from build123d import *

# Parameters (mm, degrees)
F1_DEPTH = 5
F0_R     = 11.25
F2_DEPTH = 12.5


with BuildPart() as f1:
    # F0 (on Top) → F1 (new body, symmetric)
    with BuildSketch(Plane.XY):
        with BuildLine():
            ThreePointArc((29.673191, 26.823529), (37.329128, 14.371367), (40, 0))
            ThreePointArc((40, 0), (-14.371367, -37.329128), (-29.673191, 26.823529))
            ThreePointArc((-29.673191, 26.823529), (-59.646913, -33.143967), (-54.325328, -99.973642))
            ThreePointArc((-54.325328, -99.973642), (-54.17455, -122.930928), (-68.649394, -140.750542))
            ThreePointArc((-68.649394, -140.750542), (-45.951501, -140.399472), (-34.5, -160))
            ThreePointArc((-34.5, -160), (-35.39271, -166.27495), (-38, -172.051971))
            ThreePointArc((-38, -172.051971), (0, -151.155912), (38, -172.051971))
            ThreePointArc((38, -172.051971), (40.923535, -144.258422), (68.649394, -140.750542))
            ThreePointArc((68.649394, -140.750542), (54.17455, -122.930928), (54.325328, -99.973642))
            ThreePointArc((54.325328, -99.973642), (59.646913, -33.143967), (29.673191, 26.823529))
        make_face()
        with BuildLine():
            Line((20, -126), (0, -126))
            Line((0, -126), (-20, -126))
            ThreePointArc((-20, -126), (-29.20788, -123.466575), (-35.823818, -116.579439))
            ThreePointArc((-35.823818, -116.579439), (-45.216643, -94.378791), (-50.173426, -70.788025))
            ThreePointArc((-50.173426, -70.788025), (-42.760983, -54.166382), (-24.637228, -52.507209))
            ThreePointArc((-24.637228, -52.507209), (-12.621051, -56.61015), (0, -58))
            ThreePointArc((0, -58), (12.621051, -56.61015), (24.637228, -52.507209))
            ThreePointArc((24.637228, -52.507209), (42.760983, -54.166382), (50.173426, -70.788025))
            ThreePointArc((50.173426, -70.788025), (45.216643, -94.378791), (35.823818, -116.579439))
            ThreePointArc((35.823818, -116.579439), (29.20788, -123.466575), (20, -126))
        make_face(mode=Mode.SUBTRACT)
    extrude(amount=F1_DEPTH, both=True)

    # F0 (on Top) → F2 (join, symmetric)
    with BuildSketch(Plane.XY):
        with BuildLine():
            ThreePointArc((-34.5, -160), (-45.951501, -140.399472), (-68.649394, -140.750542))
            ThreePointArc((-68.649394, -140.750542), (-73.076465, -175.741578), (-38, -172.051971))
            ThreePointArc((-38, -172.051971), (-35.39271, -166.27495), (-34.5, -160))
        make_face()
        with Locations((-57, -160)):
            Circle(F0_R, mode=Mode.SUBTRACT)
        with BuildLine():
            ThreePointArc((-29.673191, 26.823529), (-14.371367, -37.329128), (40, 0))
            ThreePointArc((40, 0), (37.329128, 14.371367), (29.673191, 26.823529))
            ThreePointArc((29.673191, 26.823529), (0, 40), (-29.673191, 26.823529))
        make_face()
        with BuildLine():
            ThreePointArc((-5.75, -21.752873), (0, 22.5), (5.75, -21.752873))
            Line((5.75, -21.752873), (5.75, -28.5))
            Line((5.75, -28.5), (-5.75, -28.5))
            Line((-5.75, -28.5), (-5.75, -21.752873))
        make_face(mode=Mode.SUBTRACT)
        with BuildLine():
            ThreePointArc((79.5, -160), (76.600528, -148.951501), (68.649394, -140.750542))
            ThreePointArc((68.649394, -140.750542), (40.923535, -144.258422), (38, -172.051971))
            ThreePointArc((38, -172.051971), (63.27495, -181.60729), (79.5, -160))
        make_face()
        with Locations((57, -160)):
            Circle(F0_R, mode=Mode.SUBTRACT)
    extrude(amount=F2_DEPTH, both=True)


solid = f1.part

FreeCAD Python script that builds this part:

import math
import FreeCAD as App
import Part
import Sketcher

V = App.Vector

doc = App.newDocument("Part")
body = doc.addObject("PartDesign::Body", "Body")

sketch1 = doc.addObject("Sketcher::SketchObject", "Sketch")
body.addObject(sketch1)
sketch1.AttachmentSupport = (doc.XY_Plane, [""])
sketch1.MapMode = "FlatFace"
sketch1.addGeometry([
    Part.ArcOfCircle(Part.Circle(V(0, 0, 0), V(0, 0, 1), 40), math.radians(0), math.radians(42)),
    Part.ArcOfCircle(Part.Circle(V(0, 0, 0), V(0, 0, 1), 40), math.radians(138), math.radians(360)),
    Part.ArcOfCircle(Part.Circle(V(63, -57, 0), V(0, 0, 1), 125), math.radians(138), math.radians(200)),
    Part.ArcOfCircle(Part.Circle(V(-86, -112, 0), V(0, 0, 1), 34), math.radians(-59), math.radians(20)),
    Part.ArcOfCircle(Part.Circle(V(-57, -160, 0), V(0, 0, 1), 22), math.radians(0), math.radians(121)),
    Part.ArcOfCircle(Part.Circle(V(-57, -160, 0), V(0, 0, 1), 23), math.radians(-32), math.radians(0)),
    Part.ArcOfCircle(Part.Circle(V(0, -196, 0), V(0, 0, 1), 45), math.radians(32), math.radians(148)),
    Part.ArcOfCircle(Part.Circle(V(57, -160, 0), V(0, 0, 1), 23), math.radians(59), math.radians(212)),
    Part.ArcOfCircle(Part.Circle(V(86, -112, 0), V(0, 0, 1), 34), math.radians(160), math.radians(239)),
    Part.ArcOfCircle(Part.Circle(V(-63, -57, 0), V(0, 0, 1), 125), math.radians(-20), math.radians(42)),
    Part.ArcOfCircle(Part.Circle(V(20, -108, 0), V(0, 0, 1), 18), math.radians(-90), math.radians(-28)),
    Part.LineSegment(V(20, -126, 0), V(-20, -126, 0)),
    Part.ArcOfCircle(Part.Circle(V(-20, -108, 0), V(0, 0, 1), 18), math.radians(-152), math.radians(-90)),
    Part.ArcOfCircle(Part.Circle(V(74, -57, 0), V(0, 0, 1), 125), math.radians(-174), math.radians(-152)),
    Part.ArcOfCircle(Part.Circle(V(-32, -69, 0), V(0, 0, 1), 18), math.radians(65), math.radians(186)),
    Part.ArcOfCircle(Part.Circle(V(0, 0, 0), V(0, 0, 1), 58), math.radians(-115), math.radians(-90)),
    Part.ArcOfCircle(Part.Circle(V(0, 0, 0), V(0, 0, 1), 58), math.radians(-90), math.radians(-65)),
    Part.ArcOfCircle(Part.Circle(V(32, -69, 0), V(0, 0, 1), 18), math.radians(-6), math.radians(115)),
    Part.ArcOfCircle(Part.Circle(V(-74, -57, 0), V(0, 0, 1), 125), math.radians(-28), math.radians(-6)),
], False)
sketch1.addConstraint([
    Sketcher.Constraint("Tangent", 0, 1, 1, 2),
    Sketcher.Constraint("Tangent", 1, 1, 2, 1),
    Sketcher.Constraint("Tangent", 2, 2, 3, 2),
    Sketcher.Constraint("Tangent", 3, 1, 4, 2),
    Sketcher.Constraint("Tangent", 4, 1, 5, 2),
    Sketcher.Constraint("Tangent", 5, 1, 6, 2),
    Sketcher.Constraint("Tangent", 6, 1, 7, 2),
    Sketcher.Constraint("Tangent", 7, 1, 8, 2),
    Sketcher.Constraint("Tangent", 8, 1, 9, 1),
    Sketcher.Constraint("Tangent", 9, 2, 0, 2),
    Sketcher.Constraint("Tangent", 10, 1, 11, 1),
    Sketcher.Constraint("Tangent", 11, 2, 12, 2),
    Sketcher.Constraint("Tangent", 12, 1, 13, 2),
    Sketcher.Constraint("Tangent", 13, 1, 14, 2),
    Sketcher.Constraint("Tangent", 14, 1, 15, 1),
    Sketcher.Constraint("Tangent", 15, 2, 16, 1),
    Sketcher.Constraint("Tangent", 16, 2, 17, 2),
    Sketcher.Constraint("Tangent", 17, 1, 18, 2),
    Sketcher.Constraint("Tangent", 18, 1, 10, 2),
    Sketcher.Constraint("Horizontal", 11),
    Sketcher.Constraint("Coincident", 0, 3, -1, 1),
    Sketcher.Constraint("Coincident", 15, 3, -1, 1),
    Sketcher.Constraint("Equal", 0, 1),
    Sketcher.Constraint("Equal", 4, 7),
    Sketcher.Constraint("Equal", 3, 8),
    Sketcher.Constraint("Equal", 2, 9),
    Sketcher.Constraint("Equal", 10, 12),
    Sketcher.Constraint("Equal", 12, 14),
    Sketcher.Constraint("Equal", 15, 16),
    Sketcher.Constraint("Equal", 14, 17),
    Sketcher.Constraint("Equal", 13, 18),
    Sketcher.Constraint("Symmetric", 4, 3, 7, 3, -2),
    Sketcher.Constraint("Symmetric", 13, 3, 18, 3, -2),
    Sketcher.Constraint("PointOnObject", 6, 3, -2),
    Sketcher.Constraint("PointOnObject", 0, 1, -1),
    Sketcher.Constraint("PointOnObject", 15, 2, -2),
    Sketcher.Constraint("Horizontal", 3, 3, 8, 3),
    Sketcher.Constraint("Horizontal", 7, 3, 4, 1),
    Sketcher.Constraint("Radius", 0, 40.0),
    Sketcher.Constraint("Radius", 3, 33.999998),
    Sketcher.Constraint("Radius", 6, 44.999999),
    Sketcher.Constraint("Radius", 10, 18.0),
    Sketcher.Constraint("Radius", 4, 22.5),
    Sketcher.Constraint("DistanceX", 11, 2, 11, 1, 40.0),
    Sketcher.Constraint("DistanceY", 2, 3, -1, 1, 57.0),
    Sketcher.Constraint("DistanceX", 4, 3, -1, 1, 57.0),
    Sketcher.Constraint("DistanceY", 4, 3, -1, 1, 159.999999),
    Sketcher.Constraint("DistanceY", 10, 3, -1, 1, 108.0),
    Sketcher.Constraint("DistanceY", 15, 2, -1, 1, 58.0),
    Sketcher.Constraint("DistanceY", 18, 3, 15, 3, 57.000001),
    Sketcher.Constraint("Radius", 13, 124.999982),
    Sketcher.Constraint("Radius", 2, 124.999996),
])
pad1 = doc.addObject("PartDesign::Pad", "Pad")
body.addObject(pad1)
pad1.Profile = sketch1
pad1.Length = 10
pad1.Midplane = True

sketch2 = doc.addObject("Sketcher::SketchObject", "Sketch001")
body.addObject(sketch2)
sketch2.AttachmentSupport = (doc.XY_Plane, [""])
sketch2.MapMode = "FlatFace"
sketch2.addGeometry([
    Part.ArcOfCircle(Part.Circle(V(-57, -160, 0), V(0, 0, 1), 22), math.radians(0), math.radians(121)),
    Part.ArcOfCircle(Part.Circle(V(-57, -160, 0), V(0, 0, 1), 23), math.radians(121), math.radians(328)),
    Part.ArcOfCircle(Part.Circle(V(-57, -160, 0), V(0, 0, 1), 23), math.radians(-32), math.radians(0)),
    Part.Circle(V(-57, -160, 0), V(0, 0, 1), 11),
    Part.ArcOfCircle(Part.Circle(V(0, 0, 0), V(0, 0, 1), 40), math.radians(138), math.radians(360)),
    Part.ArcOfCircle(Part.Circle(V(0, 0, 0), V(0, 0, 1), 40), math.radians(0), math.radians(42)),
    Part.ArcOfCircle(Part.Circle(V(0, 0, 0), V(0, 0, 1), 40), math.radians(42), math.radians(138)),
    Part.LineSegment(V(-6, -28, 0), V(-6, -22, 0)),
    Part.ArcOfCircle(Part.Circle(V(0, 0, 0), V(0, 0, 1), 22), math.radians(-75), math.radians(255)),
    Part.LineSegment(V(6, -22, 0), V(6, -28, 0)),
    Part.LineSegment(V(6, -28, 0), V(-6, -28, 0)),
    Part.ArcOfCircle(Part.Circle(V(57, -160, 0), V(0, 0, 1), 22), math.radians(0), math.radians(59)),
    Part.ArcOfCircle(Part.Circle(V(57, -160, 0), V(0, 0, 1), 23), math.radians(59), math.radians(212)),
    Part.ArcOfCircle(Part.Circle(V(57, -160, 0), V(0, 0, 1), 23), math.radians(-148), math.radians(0)),
    Part.Circle(V(57, -160, 0), V(0, 0, 1), 11),
], False)
sketch2.addConstraint([
    Sketcher.Constraint("Tangent", 0, 2, 1, 1),
    Sketcher.Constraint("Tangent", 1, 2, 2, 1),
    Sketcher.Constraint("Tangent", 2, 2, 0, 1),
    Sketcher.Constraint("Tangent", 4, 2, 5, 1),
    Sketcher.Constraint("Tangent", 5, 2, 6, 1),
    Sketcher.Constraint("Tangent", 6, 2, 4, 1),
    Sketcher.Constraint("Coincident", 7, 2, 8, 2),
    Sketcher.Constraint("Coincident", 8, 1, 9, 1),
    Sketcher.Constraint("Coincident", 9, 2, 10, 1),
    Sketcher.Constraint("Coincident", 10, 2, 7, 1),
    Sketcher.Constraint("Tangent", 11, 2, 12, 1),
    Sketcher.Constraint("Tangent", 12, 2, 13, 1),
    Sketcher.Constraint("Tangent", 13, 2, 11, 1),
    Sketcher.Constraint("Vertical", 7),
    Sketcher.Constraint("Vertical", 9),
    Sketcher.Constraint("Horizontal", 10),
    Sketcher.Constraint("Coincident", 4, 3, -1, 1),
    Sketcher.Constraint("Coincident", 8, 3, -1, 1),
    Sketcher.Constraint("Coincident", 3, 3, 0, 3),
    Sketcher.Constraint("Coincident", 14, 3, 11, 3),
    Sketcher.Constraint("Equal", 1, 8),
    Sketcher.Constraint("Equal", 8, 12),
    Sketcher.Constraint("Equal", 3, 14),
    Sketcher.Constraint("Symmetric", 0, 3, 11, 3, -2),
    Sketcher.Constraint("PointOnObject", 4, 2, -1),
    Sketcher.Constraint("Horizontal", 14, 3, 2, 2),
    Sketcher.Constraint("Horizontal", 5, 2, 6, 2),
    Sketcher.Constraint("Horizontal", 7, 2, 8, 1),
    Sketcher.Constraint("Horizontal", 0, 2, 11, 2),
    Sketcher.Constraint("Horizontal", 1, 2, 12, 2),
    Sketcher.Constraint("Horizontal", 2, 2, 13, 2),
    Sketcher.Constraint("Radius", 4, 40.0),
    Sketcher.Constraint("Diameter", 3, 22.5),
    Sketcher.Constraint("Radius", 0, 22.5),
    Sketcher.Constraint("DistanceX", 10, 2, 10, 1, 11.5),
    Sketcher.Constraint("DistanceX", 0, 3, -1, 1, 57.0),
    Sketcher.Constraint("DistanceY", 0, 3, -1, 1, 159.999999),
    Sketcher.Constraint("DistanceX", 1, 2, -1, 1, 38.0),
    Sketcher.Constraint("DistanceY", 9, 2, -1, 1, 28.5),
    Sketcher.Constraint("DistanceY", 0, 2, -1, 1, 140.750542),
    Sketcher.Constraint("DistanceX", -1, 1, 5, 2, 29.673191),
])
pad2 = doc.addObject("PartDesign::Pad", "Pad001")
body.addObject(pad2)
pad2.Profile = sketch2
pad2.Length = 25
pad2.Midplane = True

doc.recompute()
